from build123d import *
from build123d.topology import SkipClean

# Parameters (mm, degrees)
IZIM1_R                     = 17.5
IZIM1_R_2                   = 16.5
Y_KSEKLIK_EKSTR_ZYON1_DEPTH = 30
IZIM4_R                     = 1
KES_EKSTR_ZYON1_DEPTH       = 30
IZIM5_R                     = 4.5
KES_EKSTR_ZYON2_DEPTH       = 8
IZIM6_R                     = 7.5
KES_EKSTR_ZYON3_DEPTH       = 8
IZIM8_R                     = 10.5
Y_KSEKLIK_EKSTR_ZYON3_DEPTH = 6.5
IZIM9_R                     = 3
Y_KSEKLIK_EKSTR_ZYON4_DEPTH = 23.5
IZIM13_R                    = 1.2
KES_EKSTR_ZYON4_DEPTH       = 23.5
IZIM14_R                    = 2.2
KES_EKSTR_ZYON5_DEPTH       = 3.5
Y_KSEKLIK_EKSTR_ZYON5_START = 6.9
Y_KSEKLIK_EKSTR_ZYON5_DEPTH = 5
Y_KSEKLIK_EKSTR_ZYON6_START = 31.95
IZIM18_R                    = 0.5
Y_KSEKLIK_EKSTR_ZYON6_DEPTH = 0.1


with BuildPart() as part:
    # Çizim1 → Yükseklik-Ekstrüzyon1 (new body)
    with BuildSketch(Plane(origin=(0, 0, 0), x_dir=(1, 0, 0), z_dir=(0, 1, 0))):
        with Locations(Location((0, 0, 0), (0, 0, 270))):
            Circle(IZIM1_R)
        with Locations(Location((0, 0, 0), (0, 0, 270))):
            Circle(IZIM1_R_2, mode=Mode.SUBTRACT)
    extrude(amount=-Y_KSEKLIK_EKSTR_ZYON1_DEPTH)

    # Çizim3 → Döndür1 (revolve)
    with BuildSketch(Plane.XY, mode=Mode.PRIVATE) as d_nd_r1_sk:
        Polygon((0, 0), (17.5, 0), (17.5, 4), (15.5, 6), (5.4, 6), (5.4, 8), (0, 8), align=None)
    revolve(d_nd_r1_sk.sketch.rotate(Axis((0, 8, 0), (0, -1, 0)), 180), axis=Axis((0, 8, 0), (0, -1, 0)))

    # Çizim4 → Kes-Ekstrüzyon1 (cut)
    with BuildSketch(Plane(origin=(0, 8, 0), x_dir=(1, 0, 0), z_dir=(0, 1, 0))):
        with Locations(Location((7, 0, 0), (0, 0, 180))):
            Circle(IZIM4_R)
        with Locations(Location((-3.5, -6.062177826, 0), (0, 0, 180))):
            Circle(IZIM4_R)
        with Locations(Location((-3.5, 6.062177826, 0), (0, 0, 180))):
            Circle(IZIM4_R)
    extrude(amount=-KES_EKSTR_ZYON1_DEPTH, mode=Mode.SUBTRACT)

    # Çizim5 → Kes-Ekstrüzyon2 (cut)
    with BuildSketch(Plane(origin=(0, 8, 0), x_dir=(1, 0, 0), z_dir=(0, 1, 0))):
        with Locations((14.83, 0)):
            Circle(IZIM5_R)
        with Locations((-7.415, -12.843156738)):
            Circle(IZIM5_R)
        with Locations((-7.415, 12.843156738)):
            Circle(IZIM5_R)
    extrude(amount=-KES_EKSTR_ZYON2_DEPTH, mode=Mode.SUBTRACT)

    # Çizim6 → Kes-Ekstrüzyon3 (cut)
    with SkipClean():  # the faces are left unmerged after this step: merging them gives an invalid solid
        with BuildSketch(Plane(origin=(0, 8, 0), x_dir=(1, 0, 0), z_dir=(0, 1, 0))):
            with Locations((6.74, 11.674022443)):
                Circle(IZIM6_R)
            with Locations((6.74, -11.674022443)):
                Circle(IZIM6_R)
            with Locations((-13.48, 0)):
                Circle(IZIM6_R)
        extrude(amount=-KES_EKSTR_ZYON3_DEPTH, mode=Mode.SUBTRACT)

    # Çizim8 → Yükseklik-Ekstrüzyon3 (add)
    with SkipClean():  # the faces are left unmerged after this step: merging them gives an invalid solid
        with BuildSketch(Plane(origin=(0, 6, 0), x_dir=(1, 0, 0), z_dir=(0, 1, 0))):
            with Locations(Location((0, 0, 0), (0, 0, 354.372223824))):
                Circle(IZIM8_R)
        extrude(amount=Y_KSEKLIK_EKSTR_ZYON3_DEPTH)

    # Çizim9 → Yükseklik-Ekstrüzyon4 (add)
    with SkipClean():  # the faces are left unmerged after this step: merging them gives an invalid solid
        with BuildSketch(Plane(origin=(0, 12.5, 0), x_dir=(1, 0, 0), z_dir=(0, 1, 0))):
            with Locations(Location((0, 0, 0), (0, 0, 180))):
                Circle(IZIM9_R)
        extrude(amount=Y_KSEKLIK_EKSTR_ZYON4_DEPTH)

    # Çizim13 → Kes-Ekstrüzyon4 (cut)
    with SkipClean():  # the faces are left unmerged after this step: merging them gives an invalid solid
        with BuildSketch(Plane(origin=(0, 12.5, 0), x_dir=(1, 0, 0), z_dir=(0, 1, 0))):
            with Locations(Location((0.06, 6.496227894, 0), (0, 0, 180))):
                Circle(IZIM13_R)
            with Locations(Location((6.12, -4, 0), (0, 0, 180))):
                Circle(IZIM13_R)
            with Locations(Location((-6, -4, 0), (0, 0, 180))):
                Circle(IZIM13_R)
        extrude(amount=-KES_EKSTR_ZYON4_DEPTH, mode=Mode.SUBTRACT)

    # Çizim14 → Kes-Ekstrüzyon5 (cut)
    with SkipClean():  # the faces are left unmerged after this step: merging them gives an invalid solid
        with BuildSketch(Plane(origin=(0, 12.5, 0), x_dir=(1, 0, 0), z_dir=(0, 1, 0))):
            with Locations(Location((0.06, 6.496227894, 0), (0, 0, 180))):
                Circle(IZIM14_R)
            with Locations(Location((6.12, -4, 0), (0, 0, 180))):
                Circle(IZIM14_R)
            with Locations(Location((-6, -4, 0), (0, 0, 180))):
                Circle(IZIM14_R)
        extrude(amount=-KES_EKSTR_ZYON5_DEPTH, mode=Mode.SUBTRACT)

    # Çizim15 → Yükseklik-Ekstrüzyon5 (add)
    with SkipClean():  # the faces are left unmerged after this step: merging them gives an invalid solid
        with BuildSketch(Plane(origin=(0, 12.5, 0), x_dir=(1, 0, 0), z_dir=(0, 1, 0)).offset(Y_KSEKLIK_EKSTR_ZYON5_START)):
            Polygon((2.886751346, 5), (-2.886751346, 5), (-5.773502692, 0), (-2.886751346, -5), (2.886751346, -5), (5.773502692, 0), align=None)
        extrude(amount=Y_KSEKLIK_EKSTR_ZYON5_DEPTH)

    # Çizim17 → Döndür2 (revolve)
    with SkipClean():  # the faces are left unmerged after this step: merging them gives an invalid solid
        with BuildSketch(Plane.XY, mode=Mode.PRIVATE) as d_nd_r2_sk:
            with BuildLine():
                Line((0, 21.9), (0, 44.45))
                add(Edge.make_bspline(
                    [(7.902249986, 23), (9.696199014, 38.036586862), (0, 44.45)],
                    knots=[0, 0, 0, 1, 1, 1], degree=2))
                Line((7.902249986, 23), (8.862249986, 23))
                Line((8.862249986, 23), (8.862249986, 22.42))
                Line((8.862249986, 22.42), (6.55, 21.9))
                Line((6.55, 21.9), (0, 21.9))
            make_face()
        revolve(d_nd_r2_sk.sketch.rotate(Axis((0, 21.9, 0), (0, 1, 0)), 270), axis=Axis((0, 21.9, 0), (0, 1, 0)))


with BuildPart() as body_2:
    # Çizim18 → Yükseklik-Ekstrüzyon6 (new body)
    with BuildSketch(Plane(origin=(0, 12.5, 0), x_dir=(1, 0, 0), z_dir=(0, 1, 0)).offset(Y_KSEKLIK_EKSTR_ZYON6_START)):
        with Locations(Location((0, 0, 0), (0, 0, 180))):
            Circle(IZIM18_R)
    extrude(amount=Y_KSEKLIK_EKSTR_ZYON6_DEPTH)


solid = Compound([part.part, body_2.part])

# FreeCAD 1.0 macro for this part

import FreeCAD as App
import Part
import Sketcher

V = App.Vector
Q = App.Units.Quantity


def add_polygon(sketch, points):
    """Adds a closed chain of lines whose ends are joined by coincident constraints."""
    first, n = sketch.GeometryCount, len(points)
    for a, b in zip(points, points[1:] + points[:1]):
        sketch.addGeometry(Part.LineSegment(App.Vector(*a, 0), App.Vector(*b, 0)), False)
    for i in range(n):
        sketch.addConstraint(Sketcher.Constraint("Coincident", first + i, 2, first + (i + 1) % n, 1))

doc = App.newDocument("Part")
body = doc.addObject("PartDesign::Body", "Body")

# Sketch on XZ plane
sketch1 = body.newObject("Sketcher::SketchObject", "Sketch")
sketch1.AttachmentSupport = (doc.getObject("XZ_Plane"), [""])
sketch1.MapMode = "FlatFace"
sketch1.addGeometry(Part.Circle(V(0, 0, 0), V(0, 0, 1), 17.5), False)
sketch1.addGeometry(Part.Circle(V(0, 0, 0), V(0, 0, 1), 16.5), False)
sketch1.addConstraint(Sketcher.Constraint("Coincident", 0, 3, -1, 1))
sketch1.addConstraint(Sketcher.Constraint("Coincident", 1, 3, -1, 1))
sketch1.addConstraint(Sketcher.Constraint("Diameter", 0, 35.0))
sketch1.addConstraint(Sketcher.Constraint("Diameter", 1, 33.0))
pad1 = body.newObject("PartDesign::Pad", "Pad")
pad1.Profile = sketch1
pad1.Length = 30

# Sketch on XY plane
sketch2 = body.newObject("Sketcher::SketchObject", "Sketch001")
sketch2.AttachmentSupport = (doc.getObject("XY_Plane"), [""])
sketch2.MapMode = "FlatFace"
add_polygon(sketch2, [(0, 0), (17.5, 0), (17.5, 4), (15.5, 6), (5.4, 6), (5.4, 8), (0, 8)])  # lines 0-6
sketch2.addConstraint(Sketcher.Constraint("Horizontal", 0))
sketch2.addConstraint(Sketcher.Constraint("Vertical", 1))
sketch2.addConstraint(Sketcher.Constraint("Horizontal", 3))
sketch2.addConstraint(Sketcher.Constraint("Vertical", 4))
sketch2.addConstraint(Sketcher.Constraint("Horizontal", 5))
sketch2.addConstraint(Sketcher.Constraint("Vertical", 6))
sketch2.addConstraint(Sketcher.Constraint("Coincident", 6, 2, -1, 1))
sketch2.addConstraint(Sketcher.Constraint("DistanceY", 1, 1, 1, 2, 4.0))
sketch2.addConstraint(Sketcher.Constraint("DistanceY", 4, 1, 4, 2, 2.0))
sketch2.addConstraint(Sketcher.Constraint("DistanceY", 6, 2, 6, 1, 8.0))
sketch2.addConstraint(Sketcher.Constraint("Angle", 2, Q("135 deg")))
sketch2.addConstraint(Sketcher.Constraint("DistanceX", 0, 1, 0, 2, 17.5))
sketch2.addConstraint(Sketcher.Constraint("DistanceX", 3, 2, 3, 1, 10.1))
revolution = body.newObject("PartDesign::Revolution", "Revolution")
revolution.Profile = sketch2
revolution.ReferenceAxis = (sketch2, ["V_Axis"])
revolution.Angle = 360

# Sketch on XZ plane
sketch3 = body.newObject("Sketcher::SketchObject", "Sketch002")
sketch3.AttachmentSupport = (doc.getObject("XZ_Plane"), [""])
sketch3.MapMode = "FlatFace"
sketch3.AttachmentOffset = App.Placement(V(0, 0, -8), App.Rotation())
sketch3.addGeometry(Part.Circle(V(7, 0, 0), V(0, 0, 1), 1), False)
sketch3.addGeometry(Part.Circle(V(-3.5, 6.062178, 0), V(0, 0, 1), 1), False)
sketch3.addGeometry(Part.Circle(V(-3.5, -6.062178, 0), V(0, 0, 1), 1), False)
sketch3.addConstraint(Sketcher.Constraint("Equal", 0, 1))
sketch3.addConstraint(Sketcher.Constraint("Equal", 1, 2))
sketch3.addConstraint(Sketcher.Constraint("Symmetric", 1, 3, 2, 3, -1))
sketch3.addConstraint(Sketcher.Constraint("PointOnObject", 0, 3, -1))
sketch3.addConstraint(Sketcher.Constraint("Diameter", 0, 2.0))
sketch3.addConstraint(Sketcher.Constraint("DistanceX", -1, 1, 0, 3, 7.0))
sketch3.addConstraint(Sketcher.Constraint("DistanceX", 1, 3, -1, 1, 3.5))
sketch3.addConstraint(Sketcher.Constraint("DistanceY", -1, 1, 1, 3, 6.062178))
pocket1 = body.newObject("PartDesign::Pocket", "Pocket")
pocket1.Profile = sketch3
pocket1.Length = 30
pocket1.Reversed = True

# Sketch on XZ plane
sketch4 = body.newObject("Sketcher::SketchObject", "Sketch003")
sketch4.AttachmentSupport = (doc.getObject("XZ_Plane"), [""])
sketch4.MapMode = "FlatFace"
sketch4.AttachmentOffset = App.Placement(V(0, 0, -8), App.Rotation())
sketch4.addGeometry(Part.Circle(V(14.83, 0, 0), V(0, 0, 1), 4.5), False)
sketch4.addGeometry(Part.Circle(V(-7.415, 12.843157, 0), V(0, 0, 1), 4.5), False)
sketch4.addGeometry(Part.Circle(V(-7.415, -12.843157, 0), V(0, 0, 1), 4.5), False)
sketch4.addConstraint(Sketcher.Constraint("Equal", 0, 1))
sketch4.addConstraint(Sketcher.Constraint("Equal", 1, 2))
sketch4.addConstraint(Sketcher.Constraint("Symmetric", 1, 3, 2, 3, -1))
sketch4.addConstraint(Sketcher.Constraint("PointOnObject", 0, 3, -1))
sketch4.addConstraint(Sketcher.Constraint("Diameter", 0, 9.0))
sketch4.addConstraint(Sketcher.Constraint("DistanceX", -1, 1, 0, 3, 14.83))
sketch4.addConstraint(Sketcher.Constraint("DistanceX", 1, 3, -1, 1, 7.415))
sketch4.addConstraint(Sketcher.Constraint("DistanceY", -1, 1, 1, 3, 12.843157))
pocket2 = body.newObject("PartDesign::Pocket", "Pocket001")
pocket2.Profile = sketch4
pocket2.Length = 8
pocket2.Reversed = True

# Sketch on XZ plane
sketch5 = body.newObject("Sketcher::SketchObject", "Sketch004")
sketch5.AttachmentSupport = (doc.getObject("XZ_Plane"), [""])
sketch5.MapMode = "FlatFace"
sketch5.AttachmentOffset = App.Placement(V(0, 0, -8), App.Rotation())
sketch5.addGeometry(Part.Circle(V(6.74, -11.674022, 0), V(0, 0, 1), 7.5), False)
sketch5.addGeometry(Part.Circle(V(6.74, 11.674022, 0), V(0, 0, 1), 7.5), False)
sketch5.addGeometry(Part.Circle(V(-13.48, 0, 0), V(0, 0, 1), 7.5), False)
sketch5.addConstraint(Sketcher.Constraint("Equal", 0, 1))
sketch5.addConstraint(Sketcher.Constraint("Equal", 1, 2))
sketch5.addConstraint(Sketcher.Constraint("Symmetric", 0, 3, 1, 3, -1))
sketch5.addConstraint(Sketcher.Constraint("PointOnObject", 2, 3, -1))
sketch5.addConstraint(Sketcher.Constraint("Diameter", 0, 15.0))
sketch5.addConstraint(Sketcher.Constraint("DistanceX", -1, 1, 0, 3, 6.74))
sketch5.addConstraint(Sketcher.Constraint("DistanceX", 2, 3, -1, 1, 13.48))
sketch5.addConstraint(Sketcher.Constraint("DistanceY", 0, 3, -1, 1, 11.674022))
pocket3 = body.newObject("PartDesign::Pocket", "Pocket002")
pocket3.Profile = sketch5
pocket3.Length = 8
pocket3.Reversed = True

# Sketch on XZ plane
sketch6 = body.newObject("Sketcher::SketchObject", "Sketch005")
sketch6.AttachmentSupport = (doc.getObject("XZ_Plane"), [""])
sketch6.MapMode = "FlatFace"
sketch6.AttachmentOffset = App.Placement(V(0, 0, -6), App.Rotation())
sketch6.addGeometry(Part.Circle(V(0, 0, 0), V(0, 0, 1), 10.5), False)
sketch6.addConstraint(Sketcher.Constraint("Coincident", 0, 3, -1, 1))
sketch6.addConstraint(Sketcher.Constraint("Diameter", 0, 21.0))
pad2 = body.newObject("PartDesign::Pad", "Pad001")
pad2.Profile = sketch6
pad2.Length = 6.5
pad2.Reversed = True

# Sketch on XZ plane
sketch7 = body.newObject("Sketcher::SketchObject", "Sketch006")
sketch7.AttachmentSupport = (doc.getObject("XZ_Plane"), [""])
sketch7.MapMode = "FlatFace"
sketch7.AttachmentOffset = App.Placement(V(0, 0, -12.5), App.Rotation())
sketch7.addGeometry(Part.Circle(V(0, 0, 0), V(0, 0, 1), 3), False)
sketch7.addConstraint(Sketcher.Constraint("Coincident", 0, 3, -1, 1))
sketch7.addConstraint(Sketcher.Constraint("Diameter", 0, 6.0))
pad3 = body.newObject("PartDesign::Pad", "Pad002")
pad3.Profile = sketch7
pad3.Length = 23.5
pad3.Reversed = True

# Sketch on XZ plane
sketch8 = body.newObject("Sketcher::SketchObject", "Sketch007")
sketch8.AttachmentSupport = (doc.getObject("XZ_Plane"), [""])
sketch8.MapMode = "FlatFace"
sketch8.AttachmentOffset = App.Placement(V(0, 0, -12.5), App.Rotation())
sketch8.addGeometry(Part.Circle(V(0.06, -6.496228, 0), V(0, 0, 1), 1.2), False)
sketch8.addGeometry(Part.Circle(V(6.12, 4, 0), V(0, 0, 1), 1.2), False)
sketch8.addGeometry(Part.Circle(V(-6, 4, 0), V(0, 0, 1), 1.2), False)
sketch8.addConstraint(Sketcher.Constraint("Equal", 0, 1))
sketch8.addConstraint(Sketcher.Constraint("Equal", 1, 2))
sketch8.addConstraint(Sketcher.Constraint("Horizontal", 1, 3, 2, 3))
sketch8.addConstraint(Sketcher.Constraint("Diameter", 0, 2.4))
sketch8.addConstraint(Sketcher.Constraint("DistanceY", -1, 1, 1, 3, 4.0))
sketch8.addConstraint(Sketcher.Constraint("DistanceX", 2, 3, -1, 1, 6.0))
sketch8.addConstraint(Sketcher.Constraint("DistanceX", -1, 1, 0, 3, 0.06))
sketch8.addConstraint(Sketcher.Constraint("DistanceX", -1, 1, 1, 3, 6.12))
sketch8.addConstraint(Sketcher.Constraint("DistanceY", 0, 3, -1, 1, 6.496228))
pocket4 = body.newObject("PartDesign::Pocket", "Pocket003")
pocket4.Profile = sketch8
pocket4.Length = 23.5
pocket4.Reversed = True

# Sketch on XZ plane
sketch9 = body.newObject("Sketcher::SketchObject", "Sketch008")
sketch9.AttachmentSupport = (doc.getObject("XZ_Plane"), [""])
sketch9.MapMode = "FlatFace"
sketch9.AttachmentOffset = App.Placement(V(0, 0, -12.5), App.Rotation())
sketch9.addGeometry(Part.Circle(V(0.06, -6.496228, 0), V(0, 0, 1), 2.2), False)
sketch9.addGeometry(Part.Circle(V(6.12, 4, 0), V(0, 0, 1), 2.2), False)
sketch9.addGeometry(Part.Circle(V(-6, 4, 0), V(0, 0, 1), 2.2), False)
sketch9.addConstraint(Sketcher.Constraint("Equal", 0, 1))
sketch9.addConstraint(Sketcher.Constraint("Equal", 1, 2))
sketch9.addConstraint(Sketcher.Constraint("Horizontal", 1, 3, 2, 3))
sketch9.addConstraint(Sketcher.Constraint("Diameter", 0, 4.4))
sketch9.addConstraint(Sketcher.Constraint("DistanceY", -1, 1, 1, 3, 4.0))
sketch9.addConstraint(Sketcher.Constraint("DistanceX", 2, 3, -1, 1, 6.0))
sketch9.addConstraint(Sketcher.Constraint("DistanceX", -1, 1, 0, 3, 0.06))
sketch9.addConstraint(Sketcher.Constraint("DistanceX", -1, 1, 1, 3, 6.12))
sketch9.addConstraint(Sketcher.Constraint("DistanceY", 0, 3, -1, 1, 6.496228))
pocket5 = body.newObject("PartDesign::Pocket", "Pocket004")
pocket5.Profile = sketch9
pocket5.Length = 3.5
pocket5.Reversed = True

# Sketch on XZ plane
sketch10 = body.newObject("Sketcher::SketchObject", "Sketch009")
sketch10.AttachmentSupport = (doc.getObject("XZ_Plane"), [""])
sketch10.MapMode = "FlatFace"
sketch10.AttachmentOffset = App.Placement(V(0, 0, -19.4), App.Rotation())
add_polygon(sketch10, [(2.886751, -5), (-2.886751, -5), (-5.773503, 0), (-2.886751, 5), (2.886751, 5), (5.773503, 0)])  # lines 0-5
sketch10.addConstraint(Sketcher.Constraint("Horizontal", 0))
sketch10.addConstraint(Sketcher.Constraint("Horizontal", 3))
sketch10.addConstraint(Sketcher.Constraint("Symmetric", 0, 2, 3, 2, -1, 1))
sketch10.addConstraint(Sketcher.Constraint("Symmetric", 1, 2, 4, 2, -1, 1))
sketch10.addConstraint(Sketcher.Constraint("PointOnObject", 1, 2, -1))
sketch10.addConstraint(Sketcher.Constraint("Parallel", 2, 5))
sketch10.addConstraint(Sketcher.Constraint("Vertical", 0, 2, 2, 2))
sketch10.addConstraint(Sketcher.Constraint("Angle", 1, Q("120 deg")))
sketch10.addConstraint(Sketcher.Constraint("DistanceY", 0, 2, -1, 1, 5.0))
sketch10.addConstraint(Sketcher.Constraint("DistanceX", 0, 2, 0, 1, 5.773503))
pad4 = body.newObject("PartDesign::Pad", "Pad003")
pad4.Profile = sketch10
pad4.Length = 5
pad4.Reversed = True

# Sketch on XY plane
sketch11 = body.newObject("Sketcher::SketchObject", "Sketch010")
sketch11.AttachmentSupport = (doc.getObject("XY_Plane"), [""])
sketch11.MapMode = "FlatFace"
sketch11.addGeometry(Part.LineSegment(V(0, 44.45, 0), V(0, 21.9, 0)), False)
sketch11.addGeometry(Part.LineSegment(V(0, 21.9, 0), V(6.55, 21.9, 0)), False)
sketch11.addGeometry(Part.LineSegment(V(6.55, 21.9, 0), V(8.86225, 22.42, 0)), False)
sketch11.addGeometry(Part.LineSegment(V(8.86225, 22.42, 0), V(8.86225, 23, 0)), False)
sketch11.addGeometry(Part.LineSegment(V(8.86225, 23, 0), V(7.90225, 23, 0)), False)
sketch11.addGeometry(Part.BSplineCurve([V(7.90225, 23, 0), V(9.696199, 38.036587, 0), V(0, 44.45, 0)], [3, 3], [0, 1], False, 2, [1, 1, 1], False), False)
sketch11.addConstraint(Sketcher.Constraint("Block", 5))
sketch11.addConstraint(Sketcher.Constraint("Coincident", 0, 2, 1, 1))
sketch11.addConstraint(Sketcher.Constraint("Coincident", 1, 2, 2, 1))
sketch11.addConstraint(Sketcher.Constraint("Coincident", 2, 2, 3, 1))
sketch11.addConstraint(Sketcher.Constraint("Coincident", 3, 2, 4, 1))
sketch11.addConstraint(Sketcher.Constraint("Coincident", 4, 2, 5, 1))
sketch11.addConstraint(Sketcher.Constraint("Coincident", 5, 2, 0, 1))
sketch11.addConstraint(Sketcher.Constraint("Vertical", 0))
sketch11.addConstraint(Sketcher.Constraint("Horizontal", 1))
sketch11.addConstraint(Sketcher.Constraint("Vertical", 3))
sketch11.addConstraint(Sketcher.Constraint("Horizontal", 4))
sketch11.addConstraint(Sketcher.Constraint("DistanceX", 1, 1, 1, 2, 6.55))
sketch11.addConstraint(Sketcher.Constraint("DistanceX", 4, 2, 4, 1, 0.96))
sketch11.addConstraint(Sketcher.Constraint("DistanceY", 0, 2, 0, 1, 22.55))
sketch11.addConstraint(Sketcher.Constraint("DistanceY", 3, 1, 3, 2, 0.58))
revolution2 = body.newObject("PartDesign::Revolution", "Revolution001")
revolution2.Profile = sketch11
revolution2.ReferenceAxis = (sketch11, ["V_Axis"])
revolution2.Angle = 360
body2 = doc.addObject("PartDesign::Body", "Body001")

# Sketch on XZ plane
sketch12 = body2.newObject("Sketcher::SketchObject", "Sketch011")
sketch12.AttachmentSupport = (doc.getObject("XZ_Plane001"), [""])
sketch12.MapMode = "FlatFace"
sketch12.AttachmentOffset = App.Placement(V(0, 0, -44.45), App.Rotation())
sketch12.addGeometry(Part.Circle(V(0, 0, 0), V(0, 0, 1), 0.5), False)
sketch12.addConstraint(Sketcher.Constraint("Coincident", 0, 3, -1, 1))
sketch12.addConstraint(Sketcher.Constraint("Diameter", 0, 1.0))
pad5 = body2.newObject("PartDesign::Pad", "Pad004")
pad5.Profile = sketch12
pad5.Length = 0.1
pad5.Reversed = True

doc.recompute()
